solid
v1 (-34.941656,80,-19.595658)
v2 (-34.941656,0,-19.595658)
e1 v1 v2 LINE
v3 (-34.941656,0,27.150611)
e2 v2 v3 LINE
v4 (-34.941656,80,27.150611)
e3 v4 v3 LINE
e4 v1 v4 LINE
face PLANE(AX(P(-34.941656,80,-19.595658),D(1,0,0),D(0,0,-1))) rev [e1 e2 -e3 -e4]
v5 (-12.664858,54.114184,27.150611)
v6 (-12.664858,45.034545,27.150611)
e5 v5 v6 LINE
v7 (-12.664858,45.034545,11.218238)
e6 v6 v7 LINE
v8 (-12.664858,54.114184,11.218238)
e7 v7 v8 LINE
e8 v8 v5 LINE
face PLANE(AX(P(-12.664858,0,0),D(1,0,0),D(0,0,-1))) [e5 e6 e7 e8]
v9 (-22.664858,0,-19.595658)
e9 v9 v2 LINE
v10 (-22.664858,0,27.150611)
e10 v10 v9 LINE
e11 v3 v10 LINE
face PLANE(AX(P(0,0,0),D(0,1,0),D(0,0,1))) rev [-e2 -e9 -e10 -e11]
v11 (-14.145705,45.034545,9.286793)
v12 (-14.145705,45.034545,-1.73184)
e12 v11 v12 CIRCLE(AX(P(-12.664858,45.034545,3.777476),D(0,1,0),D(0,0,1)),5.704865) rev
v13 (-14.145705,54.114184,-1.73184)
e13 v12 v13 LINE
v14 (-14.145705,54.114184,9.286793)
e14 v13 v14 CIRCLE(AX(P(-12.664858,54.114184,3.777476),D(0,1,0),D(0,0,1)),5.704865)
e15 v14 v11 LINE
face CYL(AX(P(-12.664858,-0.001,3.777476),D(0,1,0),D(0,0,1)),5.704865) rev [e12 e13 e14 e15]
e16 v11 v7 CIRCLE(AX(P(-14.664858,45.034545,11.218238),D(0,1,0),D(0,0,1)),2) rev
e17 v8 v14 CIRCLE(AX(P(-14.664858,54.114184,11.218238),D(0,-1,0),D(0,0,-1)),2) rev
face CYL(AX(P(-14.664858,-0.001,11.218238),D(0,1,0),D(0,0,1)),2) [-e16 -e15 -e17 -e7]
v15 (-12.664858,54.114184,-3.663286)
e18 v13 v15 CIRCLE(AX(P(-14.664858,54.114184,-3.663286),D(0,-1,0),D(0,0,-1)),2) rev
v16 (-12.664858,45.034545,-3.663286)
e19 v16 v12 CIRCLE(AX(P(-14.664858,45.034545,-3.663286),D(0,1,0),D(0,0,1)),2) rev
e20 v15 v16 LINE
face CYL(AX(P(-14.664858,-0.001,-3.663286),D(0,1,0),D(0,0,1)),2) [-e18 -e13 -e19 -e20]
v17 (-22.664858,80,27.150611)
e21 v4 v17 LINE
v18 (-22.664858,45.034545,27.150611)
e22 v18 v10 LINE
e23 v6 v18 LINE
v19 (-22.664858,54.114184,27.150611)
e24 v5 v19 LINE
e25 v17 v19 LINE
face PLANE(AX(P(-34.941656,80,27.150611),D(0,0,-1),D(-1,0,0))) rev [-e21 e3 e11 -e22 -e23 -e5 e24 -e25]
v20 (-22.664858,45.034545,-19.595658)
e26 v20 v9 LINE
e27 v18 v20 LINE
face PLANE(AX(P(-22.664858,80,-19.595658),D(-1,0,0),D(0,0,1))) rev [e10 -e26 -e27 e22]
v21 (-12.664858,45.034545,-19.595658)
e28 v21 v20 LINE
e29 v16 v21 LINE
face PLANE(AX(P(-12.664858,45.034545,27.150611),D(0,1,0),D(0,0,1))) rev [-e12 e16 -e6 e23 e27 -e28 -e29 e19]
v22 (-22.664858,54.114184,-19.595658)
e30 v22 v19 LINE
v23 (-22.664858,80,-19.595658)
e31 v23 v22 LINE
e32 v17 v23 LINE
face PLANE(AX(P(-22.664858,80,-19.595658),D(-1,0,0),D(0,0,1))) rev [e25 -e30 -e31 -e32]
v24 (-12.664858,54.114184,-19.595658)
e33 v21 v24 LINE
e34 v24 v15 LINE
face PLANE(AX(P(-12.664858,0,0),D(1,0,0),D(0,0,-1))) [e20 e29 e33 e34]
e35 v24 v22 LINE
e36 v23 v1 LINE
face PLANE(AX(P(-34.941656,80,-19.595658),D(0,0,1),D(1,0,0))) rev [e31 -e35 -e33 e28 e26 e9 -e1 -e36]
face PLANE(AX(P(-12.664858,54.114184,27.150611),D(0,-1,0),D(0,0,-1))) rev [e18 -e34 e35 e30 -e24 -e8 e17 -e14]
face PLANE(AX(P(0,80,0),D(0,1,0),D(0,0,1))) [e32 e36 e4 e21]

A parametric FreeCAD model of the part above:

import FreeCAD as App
import Part
import Sketcher
from FreeCAD import Vector
Q = App.Units.Quantity


def edges_at(feature, points):
    """Names of the edges that pass closest to the given points."""
    edges = feature.Shape.Edges
    near = lambda p: min(range(len(edges)), key=lambda i: edges[i].distToShape(Part.Vertex(*p))[0])
    return sorted({f"Edge{near(p) + 1}" for p in points})


def add_polygon(sketch, points):
    """Adds a closed chain of lines whose ends are joined by coincident constraints."""
    first, n = sketch.GeometryCount, len(points)
    for a, b in zip(points, points[1:] + points[:1]):
        sketch.addGeometry(Part.LineSegment(App.Vector(*a, 0), App.Vector(*b, 0)), False)
    for i in range(n):
        sketch.addConstraint(Sketcher.Constraint("Coincident", first + i, 2, first + (i + 1) % n, 1))

doc = App.newDocument("Part")
body = doc.addObject("PartDesign::Body", "Body")

# Sketch on XZ plane
sketch1 = body.newObject("Sketcher::SketchObject", "Sketch")
sketch1.AttachmentSupport = (doc.getObject("XZ_Plane"), [""])
sketch1.MapMode = "FlatFace"
add_polygon(sketch1, [(-34.941656, -19.595658), (-34.941656, 27.150611), (-22.664858, 27.150611), (-22.664858, -19.595658)])  # lines 0-3
sketch1.addConstraint([
    Sketcher.Constraint("Vertical", 0),
    Sketcher.Constraint("Horizontal", 1),
    Sketcher.Constraint("Vertical", 2),
    Sketcher.Constraint("Horizontal", 3),
    Sketcher.Constraint("DistanceY", 0, 1, 0, 2, Q("46.746269 mm")),
    Sketcher.Constraint("DistanceX", 1, 1, 1, 2, Q("12.276798 mm")),
    Sketcher.Constraint("DistanceY", -1, 1, 0, 2, Q("27.150611 mm")),
    Sketcher.Constraint("DistanceX", 0, 2, -1, 1, Q("34.941656 mm")),
])
pad1 = body.newObject("PartDesign::Pad", "Pad")
pad1.Profile = sketch1
pad1.Length = 80
pad1.Reversed = True

# Sketch on YZ plane
sketch2 = body.newObject("Sketcher::SketchObject", "Sketch001")
sketch2.AttachmentSupport = (doc.getObject("YZ_Plane"), [""])
sketch2.MapMode = "FlatFace"
sketch2.AttachmentOffset = App.Placement(Vector(0, 0, -22.664858), App.Rotation())
add_polygon(sketch2, [(54.114184, 27.150611), (45.034545, 27.150611), (45.034545, -19.595658), (54.114184, -19.595658)])  # lines 0-3
sketch2.addConstraint([
    Sketcher.Constraint("Horizontal", 0),
    Sketcher.Constraint("Vertical", 1),
    Sketcher.Constraint("Horizontal", 2),
    Sketcher.Constraint("Vertical", 3),
    Sketcher.Constraint("DistanceX", 0, 2, 0, 1, Q("9.079639 mm")),
    Sketcher.Constraint("DistanceY", 1, 2, 1, 1, Q("46.746269 mm")),
    Sketcher.Constraint("DistanceY", -1, 1, 0, 2, Q("27.150611 mm")),
    Sketcher.Constraint("DistanceX", -1, 1, 0, 2, Q("45.034545 mm")),
])
pad2 = body.newObject("PartDesign::Pad", "Pad001")
pad2.Profile = sketch2
pad2.Length = 10

# Sketch on XZ plane
sketch3 = body.newObject("Sketcher::SketchObject", "Sketch002")
sketch3.AttachmentSupport = (doc.getObject("XZ_Plane"), [""])
sketch3.MapMode = "FlatFace"
sketch3.AttachmentOffset = App.Placement(Vector(0, 0, -54.114184), App.Rotation())
sketch3.addGeometry(Part.Circle(Vector(-12.664858, 3.777476, 0), Vector(0, 0, 1), 5.704865), False)
sketch3.addConstraint([
    Sketcher.Constraint("Diameter", 0, Q("11.409729 mm")),
    Sketcher.Constraint("DistanceX", 0, 3, -1, 1, Q("12.664858 mm")),
    Sketcher.Constraint("DistanceY", -1, 1, 0, 3, Q("3.777476 mm")),
])
pocket1 = body.newObject("PartDesign::Pocket", "Pocket")
pocket1.Profile = sketch3
pocket1.Type = "UpToFirst"
pocket1.Reversed = True
doc.recompute()

fillet = body.newObject("PartDesign::Fillet", "Fillet")
fillet.Base = (pocket1, edges_at(pocket1, [(-12.665, 49.574, -1.927), (-12.665, 49.574, 9.482)]))
fillet.Radius = 2

doc.recompute()
